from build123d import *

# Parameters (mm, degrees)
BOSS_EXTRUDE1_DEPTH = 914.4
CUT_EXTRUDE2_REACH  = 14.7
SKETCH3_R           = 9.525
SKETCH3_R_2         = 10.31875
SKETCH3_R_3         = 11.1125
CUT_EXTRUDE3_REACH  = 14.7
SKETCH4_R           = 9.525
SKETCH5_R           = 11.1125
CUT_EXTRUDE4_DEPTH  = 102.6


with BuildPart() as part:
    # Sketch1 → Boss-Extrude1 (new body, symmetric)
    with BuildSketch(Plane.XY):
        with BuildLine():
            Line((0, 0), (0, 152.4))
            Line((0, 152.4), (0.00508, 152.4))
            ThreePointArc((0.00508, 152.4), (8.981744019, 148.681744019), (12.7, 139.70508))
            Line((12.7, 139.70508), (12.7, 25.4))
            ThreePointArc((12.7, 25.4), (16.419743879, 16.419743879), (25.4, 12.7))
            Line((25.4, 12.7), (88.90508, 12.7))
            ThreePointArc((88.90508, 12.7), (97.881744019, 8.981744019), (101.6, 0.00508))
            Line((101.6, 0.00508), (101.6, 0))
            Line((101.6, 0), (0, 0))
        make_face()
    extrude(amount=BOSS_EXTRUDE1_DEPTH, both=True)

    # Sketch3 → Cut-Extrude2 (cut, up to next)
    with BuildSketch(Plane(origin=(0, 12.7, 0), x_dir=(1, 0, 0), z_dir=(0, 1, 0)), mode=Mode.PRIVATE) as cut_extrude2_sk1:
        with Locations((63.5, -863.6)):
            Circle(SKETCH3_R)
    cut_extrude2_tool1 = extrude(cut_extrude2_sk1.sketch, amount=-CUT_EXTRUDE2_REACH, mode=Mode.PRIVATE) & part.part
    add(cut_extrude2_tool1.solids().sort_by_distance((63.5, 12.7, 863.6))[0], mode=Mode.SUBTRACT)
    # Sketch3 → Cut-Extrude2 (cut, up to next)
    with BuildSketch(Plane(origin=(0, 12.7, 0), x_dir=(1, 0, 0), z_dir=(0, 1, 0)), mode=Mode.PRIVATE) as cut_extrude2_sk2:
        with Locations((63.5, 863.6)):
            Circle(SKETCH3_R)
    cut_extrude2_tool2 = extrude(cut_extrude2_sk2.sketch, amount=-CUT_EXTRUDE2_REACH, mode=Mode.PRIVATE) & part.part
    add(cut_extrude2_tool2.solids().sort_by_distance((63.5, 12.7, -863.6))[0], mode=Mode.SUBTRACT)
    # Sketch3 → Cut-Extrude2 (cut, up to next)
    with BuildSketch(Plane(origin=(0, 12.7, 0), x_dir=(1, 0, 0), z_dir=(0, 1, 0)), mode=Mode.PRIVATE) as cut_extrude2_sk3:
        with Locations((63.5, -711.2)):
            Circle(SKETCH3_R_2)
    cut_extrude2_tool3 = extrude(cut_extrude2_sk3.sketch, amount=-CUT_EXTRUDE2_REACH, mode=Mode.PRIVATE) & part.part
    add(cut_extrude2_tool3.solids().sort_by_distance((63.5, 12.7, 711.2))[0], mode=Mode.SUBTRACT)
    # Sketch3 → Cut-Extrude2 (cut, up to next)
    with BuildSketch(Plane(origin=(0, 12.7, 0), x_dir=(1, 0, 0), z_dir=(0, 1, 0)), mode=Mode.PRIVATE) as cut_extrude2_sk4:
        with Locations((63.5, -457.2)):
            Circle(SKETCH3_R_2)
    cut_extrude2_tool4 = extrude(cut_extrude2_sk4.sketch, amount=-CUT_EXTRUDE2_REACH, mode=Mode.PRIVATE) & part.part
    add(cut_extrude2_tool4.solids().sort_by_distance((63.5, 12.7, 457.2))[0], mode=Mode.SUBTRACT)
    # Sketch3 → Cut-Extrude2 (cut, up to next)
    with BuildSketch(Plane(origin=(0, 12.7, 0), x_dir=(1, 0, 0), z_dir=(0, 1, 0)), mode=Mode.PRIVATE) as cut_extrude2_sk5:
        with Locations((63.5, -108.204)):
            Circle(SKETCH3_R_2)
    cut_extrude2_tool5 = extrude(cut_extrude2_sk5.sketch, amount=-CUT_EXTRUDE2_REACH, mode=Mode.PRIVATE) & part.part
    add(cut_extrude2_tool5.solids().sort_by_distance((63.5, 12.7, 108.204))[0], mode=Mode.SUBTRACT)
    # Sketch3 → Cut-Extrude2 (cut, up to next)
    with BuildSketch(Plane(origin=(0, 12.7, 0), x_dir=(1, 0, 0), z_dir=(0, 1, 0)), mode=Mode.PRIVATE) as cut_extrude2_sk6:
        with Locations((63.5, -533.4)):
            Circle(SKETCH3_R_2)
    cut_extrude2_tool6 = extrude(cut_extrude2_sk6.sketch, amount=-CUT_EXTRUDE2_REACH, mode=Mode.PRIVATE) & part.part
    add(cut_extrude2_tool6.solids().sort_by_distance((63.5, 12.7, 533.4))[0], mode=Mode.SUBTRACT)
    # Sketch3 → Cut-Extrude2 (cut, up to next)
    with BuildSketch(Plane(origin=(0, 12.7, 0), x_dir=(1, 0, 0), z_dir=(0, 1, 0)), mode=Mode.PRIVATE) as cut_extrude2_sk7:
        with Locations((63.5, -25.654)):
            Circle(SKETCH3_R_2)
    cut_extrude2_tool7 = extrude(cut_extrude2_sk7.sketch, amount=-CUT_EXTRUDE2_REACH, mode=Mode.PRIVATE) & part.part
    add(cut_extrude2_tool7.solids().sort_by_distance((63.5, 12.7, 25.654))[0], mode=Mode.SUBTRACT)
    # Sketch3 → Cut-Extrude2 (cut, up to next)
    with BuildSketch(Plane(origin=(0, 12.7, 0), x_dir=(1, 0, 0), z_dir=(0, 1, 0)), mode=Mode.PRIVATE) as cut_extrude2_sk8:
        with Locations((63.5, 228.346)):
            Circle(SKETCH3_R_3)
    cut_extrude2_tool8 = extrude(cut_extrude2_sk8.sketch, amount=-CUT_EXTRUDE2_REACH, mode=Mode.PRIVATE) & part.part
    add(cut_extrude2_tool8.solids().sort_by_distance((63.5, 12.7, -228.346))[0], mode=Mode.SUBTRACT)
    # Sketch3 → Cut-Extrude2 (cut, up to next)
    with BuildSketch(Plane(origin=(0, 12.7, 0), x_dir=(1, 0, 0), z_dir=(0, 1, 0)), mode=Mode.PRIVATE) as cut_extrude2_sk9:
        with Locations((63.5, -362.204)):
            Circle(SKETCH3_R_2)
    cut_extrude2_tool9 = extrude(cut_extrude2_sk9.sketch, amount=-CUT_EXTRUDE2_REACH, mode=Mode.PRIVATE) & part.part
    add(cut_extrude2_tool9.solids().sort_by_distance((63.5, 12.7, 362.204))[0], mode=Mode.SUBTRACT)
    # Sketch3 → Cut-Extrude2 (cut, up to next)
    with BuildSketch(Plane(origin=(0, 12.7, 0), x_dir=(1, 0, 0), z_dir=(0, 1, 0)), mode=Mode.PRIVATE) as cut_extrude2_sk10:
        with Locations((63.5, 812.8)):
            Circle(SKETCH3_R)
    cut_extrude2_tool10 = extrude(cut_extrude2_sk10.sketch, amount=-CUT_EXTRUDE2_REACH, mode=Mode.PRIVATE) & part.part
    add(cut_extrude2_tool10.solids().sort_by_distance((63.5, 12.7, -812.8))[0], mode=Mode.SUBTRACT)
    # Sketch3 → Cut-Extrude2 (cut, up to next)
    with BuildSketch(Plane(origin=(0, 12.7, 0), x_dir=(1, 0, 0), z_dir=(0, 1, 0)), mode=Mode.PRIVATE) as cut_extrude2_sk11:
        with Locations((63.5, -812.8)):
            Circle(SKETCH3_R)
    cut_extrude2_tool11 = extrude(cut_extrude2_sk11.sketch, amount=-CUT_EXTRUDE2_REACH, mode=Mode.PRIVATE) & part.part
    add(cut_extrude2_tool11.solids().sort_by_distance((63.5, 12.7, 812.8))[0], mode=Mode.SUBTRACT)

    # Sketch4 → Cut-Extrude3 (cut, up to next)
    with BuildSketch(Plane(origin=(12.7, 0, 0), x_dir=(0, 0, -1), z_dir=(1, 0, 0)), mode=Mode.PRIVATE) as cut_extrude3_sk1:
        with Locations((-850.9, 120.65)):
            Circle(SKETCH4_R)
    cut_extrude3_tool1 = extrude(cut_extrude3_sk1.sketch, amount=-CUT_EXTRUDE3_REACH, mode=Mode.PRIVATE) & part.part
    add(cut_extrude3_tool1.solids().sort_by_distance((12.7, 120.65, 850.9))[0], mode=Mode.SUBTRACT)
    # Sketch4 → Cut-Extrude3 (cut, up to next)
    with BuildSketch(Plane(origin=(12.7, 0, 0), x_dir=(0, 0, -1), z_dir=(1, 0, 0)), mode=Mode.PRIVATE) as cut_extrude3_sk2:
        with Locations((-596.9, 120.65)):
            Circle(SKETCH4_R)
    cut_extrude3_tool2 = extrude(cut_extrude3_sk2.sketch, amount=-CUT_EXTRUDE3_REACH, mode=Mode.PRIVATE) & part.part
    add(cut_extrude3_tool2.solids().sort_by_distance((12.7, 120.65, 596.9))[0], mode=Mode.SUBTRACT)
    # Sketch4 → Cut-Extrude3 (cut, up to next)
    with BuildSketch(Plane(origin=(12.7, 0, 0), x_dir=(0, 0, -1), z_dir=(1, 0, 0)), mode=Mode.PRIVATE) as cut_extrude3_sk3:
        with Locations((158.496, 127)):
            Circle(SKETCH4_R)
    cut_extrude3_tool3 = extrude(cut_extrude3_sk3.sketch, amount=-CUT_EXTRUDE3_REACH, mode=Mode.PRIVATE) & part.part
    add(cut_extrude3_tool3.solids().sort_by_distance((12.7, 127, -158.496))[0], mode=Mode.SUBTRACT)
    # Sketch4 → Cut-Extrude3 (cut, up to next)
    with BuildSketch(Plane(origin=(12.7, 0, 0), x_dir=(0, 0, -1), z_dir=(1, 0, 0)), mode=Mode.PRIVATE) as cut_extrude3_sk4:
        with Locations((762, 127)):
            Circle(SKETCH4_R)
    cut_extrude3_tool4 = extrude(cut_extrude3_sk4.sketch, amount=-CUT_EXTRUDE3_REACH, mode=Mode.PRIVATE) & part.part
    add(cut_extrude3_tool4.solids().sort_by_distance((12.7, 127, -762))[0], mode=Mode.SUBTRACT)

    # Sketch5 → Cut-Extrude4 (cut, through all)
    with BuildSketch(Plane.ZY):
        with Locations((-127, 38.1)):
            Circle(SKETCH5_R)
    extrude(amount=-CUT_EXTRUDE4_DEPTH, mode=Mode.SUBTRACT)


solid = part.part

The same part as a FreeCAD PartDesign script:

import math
import FreeCAD as App
import Part
import Sketcher
Q = App.Units.Quantity

doc = App.newDocument("Part")
body = doc.addObject("PartDesign::Body", "Body")

sketch1 = body.newObject("Sketcher::SketchObject", "Sketch")
sketch1.AttachmentSupport = (doc.getObject("XY_Plane"), [""])
sketch1.MapMode = "FlatFace"
sketch1.addGeometry(Part.LineSegment(App.Vector(0, 152.4, 0), App.Vector(0, 0, 0)), False)
sketch1.addGeometry(Part.LineSegment(App.Vector(0, 0, 0), App.Vector(101.6, 0, 0)), False)
sketch1.addGeometry(Part.LineSegment(App.Vector(101.6, 0, 0), App.Vector(101.6, 0.005, 0)), False)
sketch1.addGeometry(Part.ArcOfCircle(Part.Circle(App.Vector(88.905, 0.005, 0), App.Vector(0, 0, 1), 12.695), math.radians(0), math.radians(90)), False)
sketch1.addGeometry(Part.LineSegment(App.Vector(88.905, 12.7, 0), App.Vector(25.4, 12.7, 0)), False)
sketch1.addGeometry(Part.ArcOfCircle(Part.Circle(App.Vector(25.4, 25.4, 0), App.Vector(0, 0, 1), 12.7), math.radians(180), math.radians(270)), False)
sketch1.addGeometry(Part.LineSegment(App.Vector(12.7, 25.4, 0), App.Vector(12.7, 139.705, 0)), False)
sketch1.addGeometry(Part.ArcOfCircle(Part.Circle(App.Vector(0.005, 139.705, 0), App.Vector(0, 0, 1), 12.695), math.radians(0), math.radians(90)), False)
sketch1.addGeometry(Part.LineSegment(App.Vector(0.005, 152.4, 0), App.Vector(0, 152.4, 0)), False)
sketch1.addConstraint(Sketcher.Constraint("Coincident", 0, 2, 1, 1))
sketch1.addConstraint(Sketcher.Constraint("Coincident", 1, 2, 2, 1))
sketch1.addConstraint(Sketcher.Constraint("Tangent", 2, 2, 3, 1))
sketch1.addConstraint(Sketcher.Constraint("Tangent", 3, 2, 4, 1))
sketch1.addConstraint(Sketcher.Constraint("Tangent", 4, 2, 5, 2))
sketch1.addConstraint(Sketcher.Constraint("Tangent", 5, 1, 6, 1))
sketch1.addConstraint(Sketcher.Constraint("Tangent", 6, 2, 7, 1))
sketch1.addConstraint(Sketcher.Constraint("Tangent", 7, 2, 8, 1))
sketch1.addConstraint(Sketcher.Constraint("Coincident", 8, 2, 0, 1))
sketch1.addConstraint(Sketcher.Constraint("Vertical", 0))
sketch1.addConstraint(Sketcher.Constraint("Horizontal", 1))
sketch1.addConstraint(Sketcher.Constraint("Horizontal", 4))
sketch1.addConstraint(Sketcher.Constraint("Vertical", 6))
sketch1.addConstraint(Sketcher.Constraint("Coincident", 0, 2, -1, 1))
sketch1.addConstraint(Sketcher.Constraint("Equal", 3, 7))
sketch1.addConstraint(Sketcher.Constraint("Horizontal", 3, 3, 2, 2))
sketch1.addConstraint(Sketcher.Constraint("Equal", 8, 2))
sketch1.addConstraint(Sketcher.Constraint("Radius", 5, Q("0.5 in")))
sketch1.addConstraint(Sketcher.Constraint("DistanceX", 1, 1, 1, 2, Q("4 in")))
sketch1.addConstraint(Sketcher.Constraint("DistanceY", 0, 2, 0, 1, Q("6 in")))
sketch1.addConstraint(Sketcher.Constraint("DistanceX", -1, 1, 5, 3, Q("1 in")))
sketch1.addConstraint(Sketcher.Constraint("DistanceY", -1, 1, 5, 3, Q("1 in")))
sketch1.addConstraint(Sketcher.Constraint("Radius", 3, Q("0.4998 in")))
pad1 = body.newObject("PartDesign::Pad", "Pad")
pad1.Profile = sketch1
pad1.Length = Q("72 in")
pad1.Midplane = True

sketch2 = body.newObject("Sketcher::SketchObject", "Sketch001")
sketch2.AttachmentSupport = (doc.getObject("XZ_Plane"), [""])
sketch2.MapMode = "FlatFace"
sketch2.AttachmentOffset = App.Placement(App.Vector(0, 0, -0.5 * 25.4), App.Rotation())
sketch2.addGeometry(Part.Circle(App.Vector(64, 864, 0), App.Vector(0, 0, 1), 10), False)
sketch2.addConstraint(Sketcher.Constraint("Diameter", 0, Q("0.75 in")))
sketch2.addConstraint(Sketcher.Constraint("DistanceY", -1, 1, 0, 3, Q("34 in")))
sketch2.addConstraint(Sketcher.Constraint("DistanceX", -1, 1, 0, 3, Q("2.5 in")))
pocket1 = body.newObject("PartDesign::Pocket", "Pocket")
pocket1.Profile = sketch2
pocket1.Type = "UpToFirst"
pocket1.Reversed = True

sketch3 = body.newObject("Sketcher::SketchObject", "Sketch002")
sketch3.AttachmentSupport = (doc.getObject("XZ_Plane"), [""])
sketch3.MapMode = "FlatFace"
sketch3.AttachmentOffset = App.Placement(App.Vector(0, 0, -0.5 * 25.4), App.Rotation())
sketch3.addGeometry(Part.Circle(App.Vector(64, -864, 0), App.Vector(0, 0, 1), 10), False)
sketch3.addConstraint(Sketcher.Constraint("Diameter", 0, Q("0.75 in")))
sketch3.addConstraint(Sketcher.Constraint("DistanceY", 0, 3, -1, 1, Q("34 in")))
sketch3.addConstraint(Sketcher.Constraint("DistanceX", -1, 1, 0, 3, Q("2.5 in")))
pocket2 = body.newObject("PartDesign::Pocket", "Pocket001")
pocket2.Profile = sketch3
pocket2.Type = "UpToFirst"
pocket2.Reversed = True

sketch4 = body.newObject("Sketcher::SketchObject", "Sketch003")
sketch4.AttachmentSupport = (doc.getObject("XZ_Plane"), [""])
sketch4.MapMode = "FlatFace"
sketch4.AttachmentOffset = App.Placement(App.Vector(0, 0, -0.5 * 25.4), App.Rotation())
sketch4.addGeometry(Part.Circle(App.Vector(64, 711, 0), App.Vector(0, 0, 1), 10), False)
sketch4.addConstraint(Sketcher.Constraint("Diameter", 0, Q("0.8125 in")))
sketch4.addConstraint(Sketcher.Constraint("DistanceY", -1, 1, 0, 3, Q("28 in")))
sketch4.addConstraint(Sketcher.Constraint("DistanceX", -1, 1, 0, 3, Q("2.5 in")))
pocket3 = body.newObject("PartDesign::Pocket", "Pocket002")
pocket3.Profile = sketch4
pocket3.Type = "UpToFirst"
pocket3.Reversed = True

sketch5 = body.newObject("Sketcher::SketchObject", "Sketch004")
sketch5.AttachmentSupport = (doc.getObject("XZ_Plane"), [""])
sketch5.MapMode = "FlatFace"
sketch5.AttachmentOffset = App.Placement(App.Vector(0, 0, -0.5 * 25.4), App.Rotation())
sketch5.addGeometry(Part.Circle(App.Vector(64, 457, 0), App.Vector(0, 0, 1), 10), False)
sketch5.addConstraint(Sketcher.Constraint("Diameter", 0, Q("0.8125 in")))
sketch5.addConstraint(Sketcher.Constraint("DistanceY", -1, 1, 0, 3, Q("18 in")))
sketch5.addConstraint(Sketcher.Constraint("DistanceX", -1, 1, 0, 3, Q("2.5 in")))
pocket4 = body.newObject("PartDesign::Pocket", "Pocket003")
pocket4.Profile = sketch5
pocket4.Type = "UpToFirst"
pocket4.Reversed = True

sketch6 = body.newObject("Sketcher::SketchObject", "Sketch005")
sketch6.AttachmentSupport = (doc.getObject("XZ_Plane"), [""])
sketch6.MapMode = "FlatFace"
sketch6.AttachmentOffset = App.Placement(App.Vector(0, 0, -0.5 * 25.4), App.Rotation())
sketch6.addGeometry(Part.Circle(App.Vector(64, 108, 0), App.Vector(0, 0, 1), 10), False)
sketch6.addConstraint(Sketcher.Constraint("Diameter", 0, Q("0.8125 in")))
sketch6.addConstraint(Sketcher.Constraint("DistanceX", -1, 1, 0, 3, Q("2.5 in")))
sketch6.addConstraint(Sketcher.Constraint("DistanceY", -1, 1, 0, 3, Q("4.26 in")))
pocket5 = body.newObject("PartDesign::Pocket", "Pocket004")
pocket5.Profile = sketch6
pocket5.Type = "UpToFirst"
pocket5.Reversed = True

sketch7 = body.newObject("Sketcher::SketchObject", "Sketch006")
sketch7.AttachmentSupport = (doc.getObject("XZ_Plane"), [""])
sketch7.MapMode = "FlatFace"
sketch7.AttachmentOffset = App.Placement(App.Vector(0, 0, -0.5 * 25.4), App.Rotation())
sketch7.addGeometry(Part.Circle(App.Vector(64, 533, 0), App.Vector(0, 0, 1), 10), False)
sketch7.addConstraint(Sketcher.Constraint("Diameter", 0, Q("0.8125 in")))
sketch7.addConstraint(Sketcher.Constraint("DistanceY", -1, 1, 0, 3, Q("21 in")))
sketch7.addConstraint(Sketcher.Constraint("DistanceX", -1, 1, 0, 3, Q("2.5 in")))
pocket6 = body.newObject("PartDesign::Pocket", "Pocket005")
pocket6.Profile = sketch7
pocket6.Type = "UpToFirst"
pocket6.Reversed = True

sketch8 = body.newObject("Sketcher::SketchObject", "Sketch007")
sketch8.AttachmentSupport = (doc.getObject("XZ_Plane"), [""])
sketch8.MapMode = "FlatFace"
sketch8.AttachmentOffset = App.Placement(App.Vector(0, 0, -0.5 * 25.4), App.Rotation())
sketch8.addGeometry(Part.Circle(App.Vector(64, 26, 0), App.Vector(0, 0, 1), 10), False)
sketch8.addConstraint(Sketcher.Constraint("Diameter", 0, Q("0.8125 in")))
sketch8.addConstraint(Sketcher.Constraint("DistanceX", -1, 1, 0, 3, Q("2.5 in")))
sketch8.addConstraint(Sketcher.Constraint("DistanceY", -1, 1, 0, 3, Q("1.01 in")))
pocket7 = body.newObject("PartDesign::Pocket", "Pocket006")
pocket7.Profile = sketch8
pocket7.Type = "UpToFirst"
pocket7.Reversed = True

sketch9 = body.newObject("Sketcher::SketchObject", "Sketch008")
sketch9.AttachmentSupport = (doc.getObject("XZ_Plane"), [""])
sketch9.MapMode = "FlatFace"
sketch9.AttachmentOffset = App.Placement(App.Vector(0, 0, -0.5 * 25.4), App.Rotation())
sketch9.addGeometry(Part.Circle(App.Vector(64, -228, 0), App.Vector(0, 0, 1), 11), False)
sketch9.addConstraint(Sketcher.Constraint("Diameter", 0, Q("0.875 in")))
sketch9.addConstraint(Sketcher.Constraint("DistanceX", -1, 1, 0, 3, Q("2.5 in")))
sketch9.addConstraint(Sketcher.Constraint("DistanceY", 0, 3, -1, 1, Q("8.99 in")))
pocket8 = body.newObject("PartDesign::Pocket", "Pocket007")
pocket8.Profile = sketch9
pocket8.Type = "UpToFirst"
pocket8.Reversed = True

sketch10 = body.newObject("Sketcher::SketchObject", "Sketch009")
sketch10.AttachmentSupport = (doc.getObject("XZ_Plane"), [""])
sketch10.MapMode = "FlatFace"
sketch10.AttachmentOffset = App.Placement(App.Vector(0, 0, -0.5 * 25.4), App.Rotation())
sketch10.addGeometry(Part.Circle(App.Vector(64, 362, 0), App.Vector(0, 0, 1), 10), False)
sketch10.addConstraint(Sketcher.Constraint("Diameter", 0, Q("0.8125 in")))
sketch10.addConstraint(Sketcher.Constraint("DistanceX", -1, 1, 0, 3, Q("2.5 in")))
sketch10.addConstraint(Sketcher.Constraint("DistanceY", -1, 1, 0, 3, Q("14.26 in")))
pocket9 = body.newObject("PartDesign::Pocket", "Pocket008")
pocket9.Profile = sketch10
pocket9.Type = "UpToFirst"
pocket9.Reversed = True

sketch11 = body.newObject("Sketcher::SketchObject", "Sketch010")
sketch11.AttachmentSupport = (doc.getObject("XZ_Plane"), [""])
sketch11.MapMode = "FlatFace"
sketch11.AttachmentOffset = App.Placement(App.Vector(0, 0, -0.5 * 25.4), App.Rotation())
sketch11.addGeometry(Part.Circle(App.Vector(64, -813, 0), App.Vector(0, 0, 1), 10), False)
sketch11.addConstraint(Sketcher.Constraint("Diameter", 0, Q("0.75 in")))
sketch11.addConstraint(Sketcher.Constraint("DistanceY", 0, 3, -1, 1, Q("32 in")))
sketch11.addConstraint(Sketcher.Constraint("DistanceX", -1, 1, 0, 3, Q("2.5 in")))
pocket10 = body.newObject("PartDesign::Pocket", "Pocket009")
pocket10.Profile = sketch11
pocket10.Type = "UpToFirst"
pocket10.Reversed = True

sketch12 = body.newObject("Sketcher::SketchObject", "Sketch011")
sketch12.AttachmentSupport = (doc.getObject("XZ_Plane"), [""])
sketch12.MapMode = "FlatFace"
sketch12.AttachmentOffset = App.Placement(App.Vector(0, 0, -0.5 * 25.4), App.Rotation())
sketch12.addGeometry(Part.Circle(App.Vector(64, 813, 0), App.Vector(0, 0, 1), 10), False)
sketch12.addConstraint(Sketcher.Constraint("Diameter", 0, Q("0.75 in")))
sketch12.addConstraint(Sketcher.Constraint("DistanceY", -1, 1, 0, 3, Q("32 in")))
sketch12.addConstraint(Sketcher.Constraint("DistanceX", -1, 1, 0, 3, Q("2.5 in")))
pocket11 = body.newObject("PartDesign::Pocket", "Pocket010")
pocket11.Profile = sketch12
pocket11.Type = "UpToFirst"
pocket11.Reversed = True

sketch13 = body.newObject("Sketcher::SketchObject", "Sketch012")
sketch13.AttachmentSupport = (doc.getObject("YZ_Plane"), [""])
sketch13.MapMode = "FlatFace"
sketch13.AttachmentOffset = App.Placement(App.Vector(0, 0, 0.5 * 25.4), App.Rotation())
sketch13.addGeometry(Part.Circle(App.Vector(121, 851, 0), App.Vector(0, 0, 1), 10), False)
sketch13.addConstraint(Sketcher.Constraint("Diameter", 0, Q("0.75 in")))
sketch13.addConstraint(Sketcher.Constraint("DistanceY", -1, 1, 0, 3, Q("33.5 in")))
sketch13.addConstraint(Sketcher.Constraint("DistanceX", -1, 1, 0, 3, Q("4.75 in")))
pocket12 = body.newObject("PartDesign::Pocket", "Pocket011")
pocket12.Profile = sketch13
pocket12.Type = "UpToFirst"

sketch14 = body.newObject("Sketcher::SketchObject", "Sketch013")
sketch14.AttachmentSupport = (doc.getObject("YZ_Plane"), [""])
sketch14.MapMode = "FlatFace"
sketch14.AttachmentOffset = App.Placement(App.Vector(0, 0, 0.5 * 25.4), App.Rotation())
sketch14.addGeometry(Part.Circle(App.Vector(121, 597, 0), App.Vector(0, 0, 1), 10), False)
sketch14.addConstraint(Sketcher.Constraint("Diameter", 0, Q("0.75 in")))
sketch14.addConstraint(Sketcher.Constraint("DistanceY", -1, 1, 0, 3, Q("23.5 in")))
sketch14.addConstraint(Sketcher.Constraint("DistanceX", -1, 1, 0, 3, Q("4.75 in")))
pocket13 = body.newObject("PartDesign::Pocket", "Pocket012")
pocket13.Profile = sketch14
pocket13.Type = "UpToFirst"

sketch15 = body.newObject("Sketcher::SketchObject", "Sketch014")
sketch15.AttachmentSupport = (doc.getObject("YZ_Plane"), [""])
sketch15.MapMode = "FlatFace"
sketch15.AttachmentOffset = App.Placement(App.Vector(0, 0, 0.5 * 25.4), App.Rotation())
sketch15.addGeometry(Part.Circle(App.Vector(127, -158, 0), App.Vector(0, 0, 1), 10), False)
sketch15.addConstraint(Sketcher.Constraint("Diameter", 0, Q("0.75 in")))
sketch15.addConstraint(Sketcher.Constraint("DistanceX", -1, 1, 0, 3, Q("5 in")))
sketch15.addConstraint(Sketcher.Constraint("DistanceY", 0, 3, -1, 1, Q("6.24 in")))
pocket14 = body.newObject("PartDesign::Pocket", "Pocket013")
pocket14.Profile = sketch15
pocket14.Type = "UpToFirst"

sketch16 = body.newObject("Sketcher::SketchObject", "Sketch015")
sketch16.AttachmentSupport = (doc.getObject("YZ_Plane"), [""])
sketch16.MapMode = "FlatFace"
sketch16.AttachmentOffset = App.Placement(App.Vector(0, 0, 0.5 * 25.4), App.Rotation())
sketch16.addGeometry(Part.Circle(App.Vector(127, -762, 0), App.Vector(0, 0, 1), 10), False)
sketch16.addConstraint(Sketcher.Constraint("Diameter", 0, Q("0.75 in")))
sketch16.addConstraint(Sketcher.Constraint("DistanceX", -1, 1, 0, 3, Q("5 in")))
sketch16.addConstraint(Sketcher.Constraint("DistanceY", 0, 3, -1, 1, Q("30 in")))
pocket15 = body.newObject("PartDesign::Pocket", "Pocket014")
pocket15.Profile = sketch16
pocket15.Type = "UpToFirst"

sketch17 = body.newObject("Sketcher::SketchObject", "Sketch016")
sketch17.AttachmentSupport = (doc.getObject("YZ_Plane"), [""])
sketch17.MapMode = "FlatFace"
sketch17.addGeometry(Part.Circle(App.Vector(38, -127, 0), App.Vector(0, 0, 1), 11), False)
sketch17.addConstraint(Sketcher.Constraint("Diameter", 0, Q("0.875 in")))
sketch17.addConstraint(Sketcher.Constraint("DistanceY", 0, 3, -1, 1, Q("5 in")))
sketch17.addConstraint(Sketcher.Constraint("DistanceX", -1, 1, 0, 3, Q("1.5 in")))
pocket16 = body.newObject("PartDesign::Pocket", "Pocket015")
pocket16.Profile = sketch17
pocket16.Type = "ThroughAll"
pocket16.Reversed = True

doc.recompute()
